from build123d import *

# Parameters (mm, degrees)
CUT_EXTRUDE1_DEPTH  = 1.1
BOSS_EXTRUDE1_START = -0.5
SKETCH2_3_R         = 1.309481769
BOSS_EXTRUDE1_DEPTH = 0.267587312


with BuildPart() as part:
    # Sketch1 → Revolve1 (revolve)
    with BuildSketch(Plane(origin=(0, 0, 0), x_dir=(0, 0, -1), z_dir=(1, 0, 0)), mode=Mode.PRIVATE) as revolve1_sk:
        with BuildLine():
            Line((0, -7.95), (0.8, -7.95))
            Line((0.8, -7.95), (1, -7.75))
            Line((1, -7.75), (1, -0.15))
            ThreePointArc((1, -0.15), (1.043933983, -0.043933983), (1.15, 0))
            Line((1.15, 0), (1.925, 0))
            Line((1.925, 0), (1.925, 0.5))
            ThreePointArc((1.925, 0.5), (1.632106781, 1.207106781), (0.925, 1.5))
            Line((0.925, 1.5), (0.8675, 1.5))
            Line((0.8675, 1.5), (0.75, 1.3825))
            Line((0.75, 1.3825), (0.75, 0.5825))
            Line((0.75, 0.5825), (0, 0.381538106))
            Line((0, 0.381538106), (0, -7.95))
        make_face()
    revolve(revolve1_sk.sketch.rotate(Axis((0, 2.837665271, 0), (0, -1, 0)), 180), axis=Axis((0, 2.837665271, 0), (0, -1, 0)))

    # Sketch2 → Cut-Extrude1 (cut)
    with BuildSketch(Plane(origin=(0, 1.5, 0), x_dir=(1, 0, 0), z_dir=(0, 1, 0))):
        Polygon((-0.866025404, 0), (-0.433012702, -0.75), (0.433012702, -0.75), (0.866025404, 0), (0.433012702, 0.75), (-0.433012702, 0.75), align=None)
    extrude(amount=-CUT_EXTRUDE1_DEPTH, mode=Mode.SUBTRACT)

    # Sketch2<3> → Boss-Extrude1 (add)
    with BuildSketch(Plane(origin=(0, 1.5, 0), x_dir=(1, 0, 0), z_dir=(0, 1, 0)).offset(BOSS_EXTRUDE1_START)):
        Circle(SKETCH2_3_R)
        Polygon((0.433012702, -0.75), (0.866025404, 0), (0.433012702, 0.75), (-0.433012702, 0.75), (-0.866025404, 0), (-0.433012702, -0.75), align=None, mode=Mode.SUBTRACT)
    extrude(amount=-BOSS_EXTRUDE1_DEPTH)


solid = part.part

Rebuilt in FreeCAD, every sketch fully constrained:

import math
import FreeCAD as App
import Part
import Sketcher

V = App.Vector
Q = App.Units.Quantity

doc = App.newDocument("Part")
body = doc.addObject("PartDesign::Body", "Body")

# Sketch on YZ plane
sketch1 = doc.addObject("Sketcher::SketchObject", "Sketch")
body.addObject(sketch1)
sketch1.AttachmentSupport = (doc.YZ_Plane, [""])
sketch1.MapMode = "FlatFace"
sketch1.addGeometry([
    Part.LineSegment(V(-7.95, 0, 0), V(-7.95, -0.8, 0)),  # 0
    Part.LineSegment(V(-7.95, -0.8, 0), V(-7.75, -1, 0)),  # 1
    Part.LineSegment(V(-7.75, -1, 0), V(-0.15, -1, 0)),  # 2
    Part.ArcOfCircle(Part.Circle(V(-0.15, -1.15, 0), V(0, 0, 1), 0.15), math.radians(0), math.radians(90)),  # 3
    Part.LineSegment(V(0, -1.15, 0), V(0, -1.93, 0)),  # 4
    Part.LineSegment(V(0, -1.93, 0), V(0.5, -1.93, 0)),  # 5
    Part.ArcOfCircle(Part.Circle(V(0.5, -0.92, 0), V(0, 0, 1), 1), math.radians(-90), math.radians(0)),  # 6
    Part.LineSegment(V(1.5, -0.93, 0), V(1.5, -0.87, 0)),  # 7
    Part.LineSegment(V(1.5, -0.87, 0), V(1.38, -0.75, 0)),  # 8
    Part.LineSegment(V(1.38, -0.75, 0), V(0.58, -0.75, 0)),  # 9
    Part.LineSegment(V(0.58, -0.75, 0), V(0.38, 0, 0)),  # 10
    Part.LineSegment(V(0.38, 0, 0), V(-7.95, 0, 0)),  # 11
], False)
sketch1.addConstraint([
    Sketcher.Constraint("Coincident", 0, 2, 1, 1),
    Sketcher.Constraint("Coincident", 1, 2, 2, 1),
    Sketcher.Constraint("Tangent", 2, 2, 3, 2),
    Sketcher.Constraint("Tangent", 3, 1, 4, 1),
    Sketcher.Constraint("Coincident", 4, 2, 5, 1),
    Sketcher.Constraint("Tangent", 5, 2, 6, 1),
    Sketcher.Constraint("Tangent", 6, 2, 7, 1),
    Sketcher.Constraint("Coincident", 7, 2, 8, 1),
    Sketcher.Constraint("Coincident", 8, 2, 9, 1),
    Sketcher.Constraint("Coincident", 9, 2, 10, 1),
    Sketcher.Constraint("Coincident", 10, 2, 11, 1),
    Sketcher.Constraint("Coincident", 11, 2, 0, 1),
    Sketcher.Constraint("Vertical", 0),
    Sketcher.Constraint("Horizontal", 2),
    Sketcher.Constraint("Vertical", 4),
    Sketcher.Constraint("Horizontal", 5),
    Sketcher.Constraint("Vertical", 7),
    Sketcher.Constraint("Horizontal", 9),
    Sketcher.Constraint("Horizontal", 11),
    Sketcher.Constraint("PointOnObject", 3, 1, -2),
    Sketcher.Constraint("PointOnObject", 10, 2, -1),
    Sketcher.Constraint("Parallel", 1, 8),
    Sketcher.Constraint("Equal", 9, 0),
    Sketcher.Constraint("Radius", 6, Q("1 mm")),
    Sketcher.Constraint("Angle", 1, Q("-45 deg")),
    Sketcher.Constraint("Angle", 10, Q("105 deg")),
    Sketcher.Constraint("Radius", 3, Q("0.15 mm")),
    Sketcher.Constraint("DistanceX", 2, 1, 2, 2, Q("7.6 mm")),
    Sketcher.Constraint("DistanceX", 5, 1, 5, 2, Q("0.5 mm")),
    Sketcher.Constraint("DistanceX", 9, 2, 9, 1, Q("0.8 mm")),
    Sketcher.Constraint("DistanceY", 1, 2, -1, 1, Q("1 mm")),
    Sketcher.Constraint("DistanceY", 3, 1, 8, 2, Q("0.4 mm")),
    Sketcher.Constraint("DistanceY", 4, 2, 4, 1, Q("0.775 mm")),
    Sketcher.Constraint("DistanceY", 7, 1, 7, 2, Q("0.0575 mm")),
])
revolution = doc.addObject("PartDesign::Revolution", "Revolution")
body.addObject(revolution)
revolution.Profile = sketch1
revolution.ReferenceAxis = (sketch1, ["H_Axis"])
revolution.Angle = 360

# Sketch on XZ plane
sketch2 = doc.addObject("Sketcher::SketchObject", "Sketch001")
body.addObject(sketch2)
sketch2.AttachmentSupport = (doc.XZ_Plane, [""])
sketch2.MapMode = "FlatFace"
sketch2.AttachmentOffset = App.Placement(V(0, 0, -1.5), App.Rotation())
sketch2.addGeometry([
    Part.LineSegment(V(-0.9, 0, 0), V(-0.4, 0.8, 0)),  # 0
    Part.LineSegment(V(-0.4, 0.8, 0), V(0.4, 0.8, 0)),  # 1
    Part.LineSegment(V(0.4, 0.8, 0), V(0.9, 0, 0)),  # 2
    Part.LineSegment(V(0.9, 0, 0), V(0.4, -0.8, 0)),  # 3
    Part.LineSegment(V(0.4, -0.8, 0), V(-0.4, -0.8, 0)),  # 4
    Part.LineSegment(V(-0.4, -0.8, 0), V(-0.9, 0, 0)),  # 5
], False)
sketch2.addConstraint([
    Sketcher.Constraint("Coincident", 0, 2, 1, 1),
    Sketcher.Constraint("Coincident", 1, 2, 2, 1),
    Sketcher.Constraint("Coincident", 2, 2, 3, 1),
    Sketcher.Constraint("Coincident", 3, 2, 4, 1),
    Sketcher.Constraint("Coincident", 4, 2, 5, 1),
    Sketcher.Constraint("Coincident", 5, 2, 0, 1),
    Sketcher.Constraint("Horizontal", 1),
    Sketcher.Constraint("Horizontal", 4),
    Sketcher.Constraint("Symmetric", 0, 2, 3, 2, -1, 1),
    Sketcher.Constraint("Symmetric", 2, 2, 5, 2, -1, 1),
    Sketcher.Constraint("PointOnObject", 2, 2, -1),
    Sketcher.Constraint("Parallel", 2, 5),
    Sketcher.Constraint("Vertical", 1, 2, 3, 2),
    Sketcher.Constraint("Angle", 0, Q("60 deg")),
    Sketcher.Constraint("DistanceY", 3, 2, 1, 2, Q("1.5 mm")),
    Sketcher.Constraint("DistanceX", 1, 1, 1, 2, Q("0.866025 mm")),
])
pocket1 = doc.addObject("PartDesign::Pocket", "Pocket")
body.addObject(pocket1)
pocket1.Profile = sketch2
pocket1.Length = 1.1
pocket1.Reversed = True

# Sketch on XZ plane
sketch3 = doc.addObject("Sketcher::SketchObject", "Sketch002")
body.addObject(sketch3)
sketch3.AttachmentSupport = (doc.XZ_Plane, [""])
sketch3.MapMode = "FlatFace"
sketch3.AttachmentOffset = App.Placement(V(0, 0, -1), App.Rotation())
sketch3.addGeometry([
    Part.Circle(V(0, 0, 0), V(0, 0, 1), 1.3),  # 0
    Part.LineSegment(V(0.9, 0, 0), V(0.4, 0.8, 0)),  # 1
    Part.LineSegment(V(0.4, 0.8, 0), V(-0.4, 0.8, 0)),  # 2
    Part.LineSegment(V(-0.4, 0.8, 0), V(-0.9, 0, 0)),  # 3
    Part.LineSegment(V(-0.9, 0, 0), V(-0.4, -0.8, 0)),  # 4
    Part.LineSegment(V(-0.4, -0.8, 0), V(0.4, -0.8, 0)),  # 5
    Part.LineSegment(V(0.4, -0.8, 0), V(0.9, 0, 0)),  # 6
], False)
sketch3.addConstraint([
    Sketcher.Constraint("Coincident", 1, 2, 2, 1),
    Sketcher.Constraint("Coincident", 2, 2, 3, 1),
    Sketcher.Constraint("Coincident", 3, 2, 4, 1),
    Sketcher.Constraint("Coincident", 4, 2, 5, 1),
    Sketcher.Constraint("Coincident", 5, 2, 6, 1),
    Sketcher.Constraint("Coincident", 6, 2, 1, 1),
    Sketcher.Constraint("Horizontal", 2),
    Sketcher.Constraint("Horizontal", 5),
    Sketcher.Constraint("Coincident", 0, 3, -1, 1),
    Sketcher.Constraint("Symmetric", 1, 2, 4, 2, -1, 1),
    Sketcher.Constraint("Symmetric", 3, 2, 6, 2, -1, 1),
    Sketcher.Constraint("PointOnObject", 3, 2, -1),
    Sketcher.Constraint("Parallel", 3, 6),
    Sketcher.Constraint("Vertical", 2, 2, 4, 2),
    Sketcher.Constraint("Angle", 1, Q("120 deg")),
    Sketcher.Constraint("DistanceY", 4, 2, 2, 2, Q("1.5 mm")),
    Sketcher.Constraint("Diameter", 0, Q("2.618964 mm")),
    Sketcher.Constraint("DistanceX", 2, 2, 2, 1, Q("0.866025 mm")),
])
pad1 = doc.addObject("PartDesign::Pad", "Pad")
body.addObject(pad1)
pad1.Profile = sketch3
pad1.Length = 0.267587

doc.recompute()
